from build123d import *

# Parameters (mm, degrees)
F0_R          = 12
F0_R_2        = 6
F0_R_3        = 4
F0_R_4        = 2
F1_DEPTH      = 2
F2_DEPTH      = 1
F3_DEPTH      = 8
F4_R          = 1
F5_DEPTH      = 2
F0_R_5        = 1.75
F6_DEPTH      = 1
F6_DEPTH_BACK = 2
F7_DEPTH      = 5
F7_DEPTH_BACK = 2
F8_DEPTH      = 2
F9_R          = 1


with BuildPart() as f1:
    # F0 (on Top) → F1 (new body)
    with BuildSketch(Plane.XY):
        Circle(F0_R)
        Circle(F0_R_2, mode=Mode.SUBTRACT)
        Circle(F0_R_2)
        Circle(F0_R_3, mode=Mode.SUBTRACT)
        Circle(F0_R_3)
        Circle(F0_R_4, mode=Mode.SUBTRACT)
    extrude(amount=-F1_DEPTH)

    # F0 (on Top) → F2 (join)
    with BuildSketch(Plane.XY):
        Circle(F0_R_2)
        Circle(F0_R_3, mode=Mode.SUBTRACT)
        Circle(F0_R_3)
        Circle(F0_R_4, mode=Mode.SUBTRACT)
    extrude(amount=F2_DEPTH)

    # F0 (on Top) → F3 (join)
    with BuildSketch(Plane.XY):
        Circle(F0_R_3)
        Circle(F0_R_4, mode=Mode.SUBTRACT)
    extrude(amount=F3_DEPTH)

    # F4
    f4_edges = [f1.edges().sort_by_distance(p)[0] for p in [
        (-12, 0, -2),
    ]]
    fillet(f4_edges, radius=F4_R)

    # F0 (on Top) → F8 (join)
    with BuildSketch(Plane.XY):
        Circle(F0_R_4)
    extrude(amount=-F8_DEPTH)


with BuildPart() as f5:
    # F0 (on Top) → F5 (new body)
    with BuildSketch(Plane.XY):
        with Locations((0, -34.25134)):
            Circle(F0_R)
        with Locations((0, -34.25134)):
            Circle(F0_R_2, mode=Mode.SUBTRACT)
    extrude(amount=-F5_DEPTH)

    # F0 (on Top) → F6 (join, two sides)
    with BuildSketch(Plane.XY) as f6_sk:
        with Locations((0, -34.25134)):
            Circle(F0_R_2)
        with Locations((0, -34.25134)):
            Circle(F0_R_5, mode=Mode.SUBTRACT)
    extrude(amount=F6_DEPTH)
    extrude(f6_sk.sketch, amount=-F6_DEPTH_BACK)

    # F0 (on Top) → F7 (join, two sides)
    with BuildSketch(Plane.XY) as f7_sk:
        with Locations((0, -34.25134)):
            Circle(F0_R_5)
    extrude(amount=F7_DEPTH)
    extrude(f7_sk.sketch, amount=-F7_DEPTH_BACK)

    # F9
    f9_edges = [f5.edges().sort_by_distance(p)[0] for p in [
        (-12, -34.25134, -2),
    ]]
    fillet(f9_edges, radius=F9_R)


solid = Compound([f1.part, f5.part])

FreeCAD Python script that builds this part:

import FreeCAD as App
import Part
import Sketcher
from FreeCAD import Vector


def edges_at(feature, points):
    """Names of the edges that pass closest to the given points."""
    edges = feature.Shape.Edges
    near = lambda p: min(range(len(edges)), key=lambda i: edges[i].distToShape(Part.Vertex(*p))[0])
    return sorted({f"Edge{near(p) + 1}" for p in points})

doc = App.newDocument("Part")
body = doc.addObject("PartDesign::Body", "Body")

sketch1 = doc.addObject("Sketcher::SketchObject", "Sketch")
body.addObject(sketch1)
sketch1.AttachmentSupport = (doc.XY_Plane, [""])
sketch1.MapMode = "FlatFace"
sketch1.addGeometry(Part.Circle(Vector(0, 0, 0), Vector(0, 0, 1), 12), False)
sketch1.addGeometry(Part.Circle(Vector(0, 0, 0), Vector(0, 0, 1), 2), False)
sketch1.addConstraint(Sketcher.Constraint("Coincident", 0, 3, -1, 1))
sketch1.addConstraint(Sketcher.Constraint("Coincident", 1, 3, -1, 1))
sketch1.addConstraint(Sketcher.Constraint("Diameter", 0, 24.0))
sketch1.addConstraint(Sketcher.Constraint("Diameter", 1, 4.0))
pad1 = doc.addObject("PartDesign::Pad", "Pad")
body.addObject(pad1)
pad1.Profile = sketch1
pad1.Length = 2
pad1.Reversed = True

sketch2 = doc.addObject("Sketcher::SketchObject", "Sketch001")
body.addObject(sketch2)
sketch2.AttachmentSupport = (doc.XY_Plane, [""])
sketch2.MapMode = "FlatFace"
sketch2.addGeometry(Part.Circle(Vector(0, 0, 0), Vector(0, 0, 1), 6), False)
sketch2.addGeometry(Part.Circle(Vector(0, 0, 0), Vector(0, 0, 1), 2), False)
sketch2.addConstraint(Sketcher.Constraint("Coincident", 0, 3, -1, 1))
sketch2.addConstraint(Sketcher.Constraint("Coincident", 1, 3, -1, 1))
sketch2.addConstraint(Sketcher.Constraint("Diameter", 0, 12.0))
sketch2.addConstraint(Sketcher.Constraint("Diameter", 1, 4.0))
pad2 = doc.addObject("PartDesign::Pad", "Pad001")
body.addObject(pad2)
pad2.Profile = sketch2
pad2.Length = 1

sketch3 = doc.addObject("Sketcher::SketchObject", "Sketch002")
body.addObject(sketch3)
sketch3.AttachmentSupport = (doc.XY_Plane, [""])
sketch3.MapMode = "FlatFace"
sketch3.addGeometry(Part.Circle(Vector(0, 0, 0), Vector(0, 0, 1), 4), False)
sketch3.addGeometry(Part.Circle(Vector(0, 0, 0), Vector(0, 0, 1), 2), False)
sketch3.addConstraint(Sketcher.Constraint("Coincident", 0, 3, -1, 1))
sketch3.addConstraint(Sketcher.Constraint("Coincident", 1, 3, -1, 1))
sketch3.addConstraint(Sketcher.Constraint("Diameter", 0, 8.0))
sketch3.addConstraint(Sketcher.Constraint("Diameter", 1, 4.0))
pad3 = doc.addObject("PartDesign::Pad", "Pad002")
body.addObject(pad3)
pad3.Profile = sketch3
pad3.Length = 8
doc.recompute()

fillet = doc.addObject("PartDesign::Fillet", "Fillet")
body.addObject(fillet)
fillet.Base = (pad3, edges_at(pad3, [(-12, 0, -2)]))
fillet.Radius = 1

sketch4 = doc.addObject("Sketcher::SketchObject", "Sketch003")
body.addObject(sketch4)
sketch4.AttachmentSupport = (doc.XY_Plane, [""])
sketch4.MapMode = "FlatFace"
sketch4.addGeometry(Part.Circle(Vector(0, 0, 0), Vector(0, 0, 1), 2), False)
sketch4.addConstraint(Sketcher.Constraint("Coincident", 0, 3, -1, 1))
sketch4.addConstraint(Sketcher.Constraint("Diameter", 0, 4.0))
pad4 = doc.addObject("PartDesign::Pad", "Pad003")
body.addObject(pad4)
pad4.Profile = sketch4
pad4.Length = 2
pad4.Reversed = True
body2 = doc.addObject("PartDesign::Body", "Body001")

sketch5 = doc.addObject("Sketcher::SketchObject", "Sketch004")
body2.addObject(sketch5)
sketch5.AttachmentSupport = (doc.getObject("XY_Plane001"), [""])
sketch5.MapMode = "FlatFace"
sketch5.addGeometry(Part.Circle(Vector(0, -34, 0), Vector(0, 0, 1), 12), False)
sketch5.addGeometry(Part.Circle(Vector(0, -34, 0), Vector(0, 0, 1), 6), False)
sketch5.addConstraint(Sketcher.Constraint("Coincident", 1, 3, 0, 3))
sketch5.addConstraint(Sketcher.Constraint("PointOnObject", 0, 3, -2))
sketch5.addConstraint(Sketcher.Constraint("Diameter", 0, 24.0))
sketch5.addConstraint(Sketcher.Constraint("Diameter", 1, 12.0))
sketch5.addConstraint(Sketcher.Constraint("DistanceY", 0, 3, -1, 1, 34.25134))
pad5 = doc.addObject("PartDesign::Pad", "Pad004")
body2.addObject(pad5)
pad5.Profile = sketch5
pad5.Length = 2
pad5.Reversed = True

sketch6 = doc.addObject("Sketcher::SketchObject", "Sketch005")
body2.addObject(sketch6)
sketch6.AttachmentSupport = (doc.getObject("XY_Plane001"), [""])
sketch6.MapMode = "FlatFace"
sketch6.addGeometry(Part.Circle(Vector(0, -34.3, 0), Vector(0, 0, 1), 6), False)
sketch6.addGeometry(Part.Circle(Vector(0, -34.3, 0), Vector(0, 0, 1), 1.8), False)
sketch6.addConstraint(Sketcher.Constraint("Coincident", 1, 3, 0, 3))
sketch6.addConstraint(Sketcher.Constraint("PointOnObject", 0, 3, -2))
sketch6.addConstraint(Sketcher.Constraint("Diameter", 0, 12.0))
sketch6.addConstraint(Sketcher.Constraint("Diameter", 1, 3.5))
sketch6.addConstraint(Sketcher.Constraint("DistanceY", 0, 3, -1, 1, 34.25134))
pad6 = doc.addObject("PartDesign::Pad", "Pad005")
body2.addObject(pad6)
pad6.Profile = sketch6
pad6.Type = "TwoLengths"
pad6.Length = 1
pad6.Length2 = 2

sketch7 = doc.addObject("Sketcher::SketchObject", "Sketch006")
body2.addObject(sketch7)
sketch7.AttachmentSupport = (doc.getObject("XY_Plane001"), [""])
sketch7.MapMode = "FlatFace"
sketch7.addGeometry(Part.Circle(Vector(0, -34.3, 0), Vector(0, 0, 1), 1.8), False)
sketch7.addConstraint(Sketcher.Constraint("PointOnObject", 0, 3, -2))
sketch7.addConstraint(Sketcher.Constraint("Diameter", 0, 3.5))
sketch7.addConstraint(Sketcher.Constraint("DistanceY", 0, 3, -1, 1, 34.25134))
pad7 = doc.addObject("PartDesign::Pad", "Pad006")
body2.addObject(pad7)
pad7.Profile = sketch7
pad7.Type = "TwoLengths"
pad7.Length = 5
pad7.Length2 = 2
doc.recompute()

fillet2 = doc.addObject("PartDesign::Fillet", "Fillet001")
body2.addObject(fillet2)
fillet2.Base = (pad7, edges_at(pad7, [(-12, -34.251, -2)]))
fillet2.Radius = 1

doc.recompute()
